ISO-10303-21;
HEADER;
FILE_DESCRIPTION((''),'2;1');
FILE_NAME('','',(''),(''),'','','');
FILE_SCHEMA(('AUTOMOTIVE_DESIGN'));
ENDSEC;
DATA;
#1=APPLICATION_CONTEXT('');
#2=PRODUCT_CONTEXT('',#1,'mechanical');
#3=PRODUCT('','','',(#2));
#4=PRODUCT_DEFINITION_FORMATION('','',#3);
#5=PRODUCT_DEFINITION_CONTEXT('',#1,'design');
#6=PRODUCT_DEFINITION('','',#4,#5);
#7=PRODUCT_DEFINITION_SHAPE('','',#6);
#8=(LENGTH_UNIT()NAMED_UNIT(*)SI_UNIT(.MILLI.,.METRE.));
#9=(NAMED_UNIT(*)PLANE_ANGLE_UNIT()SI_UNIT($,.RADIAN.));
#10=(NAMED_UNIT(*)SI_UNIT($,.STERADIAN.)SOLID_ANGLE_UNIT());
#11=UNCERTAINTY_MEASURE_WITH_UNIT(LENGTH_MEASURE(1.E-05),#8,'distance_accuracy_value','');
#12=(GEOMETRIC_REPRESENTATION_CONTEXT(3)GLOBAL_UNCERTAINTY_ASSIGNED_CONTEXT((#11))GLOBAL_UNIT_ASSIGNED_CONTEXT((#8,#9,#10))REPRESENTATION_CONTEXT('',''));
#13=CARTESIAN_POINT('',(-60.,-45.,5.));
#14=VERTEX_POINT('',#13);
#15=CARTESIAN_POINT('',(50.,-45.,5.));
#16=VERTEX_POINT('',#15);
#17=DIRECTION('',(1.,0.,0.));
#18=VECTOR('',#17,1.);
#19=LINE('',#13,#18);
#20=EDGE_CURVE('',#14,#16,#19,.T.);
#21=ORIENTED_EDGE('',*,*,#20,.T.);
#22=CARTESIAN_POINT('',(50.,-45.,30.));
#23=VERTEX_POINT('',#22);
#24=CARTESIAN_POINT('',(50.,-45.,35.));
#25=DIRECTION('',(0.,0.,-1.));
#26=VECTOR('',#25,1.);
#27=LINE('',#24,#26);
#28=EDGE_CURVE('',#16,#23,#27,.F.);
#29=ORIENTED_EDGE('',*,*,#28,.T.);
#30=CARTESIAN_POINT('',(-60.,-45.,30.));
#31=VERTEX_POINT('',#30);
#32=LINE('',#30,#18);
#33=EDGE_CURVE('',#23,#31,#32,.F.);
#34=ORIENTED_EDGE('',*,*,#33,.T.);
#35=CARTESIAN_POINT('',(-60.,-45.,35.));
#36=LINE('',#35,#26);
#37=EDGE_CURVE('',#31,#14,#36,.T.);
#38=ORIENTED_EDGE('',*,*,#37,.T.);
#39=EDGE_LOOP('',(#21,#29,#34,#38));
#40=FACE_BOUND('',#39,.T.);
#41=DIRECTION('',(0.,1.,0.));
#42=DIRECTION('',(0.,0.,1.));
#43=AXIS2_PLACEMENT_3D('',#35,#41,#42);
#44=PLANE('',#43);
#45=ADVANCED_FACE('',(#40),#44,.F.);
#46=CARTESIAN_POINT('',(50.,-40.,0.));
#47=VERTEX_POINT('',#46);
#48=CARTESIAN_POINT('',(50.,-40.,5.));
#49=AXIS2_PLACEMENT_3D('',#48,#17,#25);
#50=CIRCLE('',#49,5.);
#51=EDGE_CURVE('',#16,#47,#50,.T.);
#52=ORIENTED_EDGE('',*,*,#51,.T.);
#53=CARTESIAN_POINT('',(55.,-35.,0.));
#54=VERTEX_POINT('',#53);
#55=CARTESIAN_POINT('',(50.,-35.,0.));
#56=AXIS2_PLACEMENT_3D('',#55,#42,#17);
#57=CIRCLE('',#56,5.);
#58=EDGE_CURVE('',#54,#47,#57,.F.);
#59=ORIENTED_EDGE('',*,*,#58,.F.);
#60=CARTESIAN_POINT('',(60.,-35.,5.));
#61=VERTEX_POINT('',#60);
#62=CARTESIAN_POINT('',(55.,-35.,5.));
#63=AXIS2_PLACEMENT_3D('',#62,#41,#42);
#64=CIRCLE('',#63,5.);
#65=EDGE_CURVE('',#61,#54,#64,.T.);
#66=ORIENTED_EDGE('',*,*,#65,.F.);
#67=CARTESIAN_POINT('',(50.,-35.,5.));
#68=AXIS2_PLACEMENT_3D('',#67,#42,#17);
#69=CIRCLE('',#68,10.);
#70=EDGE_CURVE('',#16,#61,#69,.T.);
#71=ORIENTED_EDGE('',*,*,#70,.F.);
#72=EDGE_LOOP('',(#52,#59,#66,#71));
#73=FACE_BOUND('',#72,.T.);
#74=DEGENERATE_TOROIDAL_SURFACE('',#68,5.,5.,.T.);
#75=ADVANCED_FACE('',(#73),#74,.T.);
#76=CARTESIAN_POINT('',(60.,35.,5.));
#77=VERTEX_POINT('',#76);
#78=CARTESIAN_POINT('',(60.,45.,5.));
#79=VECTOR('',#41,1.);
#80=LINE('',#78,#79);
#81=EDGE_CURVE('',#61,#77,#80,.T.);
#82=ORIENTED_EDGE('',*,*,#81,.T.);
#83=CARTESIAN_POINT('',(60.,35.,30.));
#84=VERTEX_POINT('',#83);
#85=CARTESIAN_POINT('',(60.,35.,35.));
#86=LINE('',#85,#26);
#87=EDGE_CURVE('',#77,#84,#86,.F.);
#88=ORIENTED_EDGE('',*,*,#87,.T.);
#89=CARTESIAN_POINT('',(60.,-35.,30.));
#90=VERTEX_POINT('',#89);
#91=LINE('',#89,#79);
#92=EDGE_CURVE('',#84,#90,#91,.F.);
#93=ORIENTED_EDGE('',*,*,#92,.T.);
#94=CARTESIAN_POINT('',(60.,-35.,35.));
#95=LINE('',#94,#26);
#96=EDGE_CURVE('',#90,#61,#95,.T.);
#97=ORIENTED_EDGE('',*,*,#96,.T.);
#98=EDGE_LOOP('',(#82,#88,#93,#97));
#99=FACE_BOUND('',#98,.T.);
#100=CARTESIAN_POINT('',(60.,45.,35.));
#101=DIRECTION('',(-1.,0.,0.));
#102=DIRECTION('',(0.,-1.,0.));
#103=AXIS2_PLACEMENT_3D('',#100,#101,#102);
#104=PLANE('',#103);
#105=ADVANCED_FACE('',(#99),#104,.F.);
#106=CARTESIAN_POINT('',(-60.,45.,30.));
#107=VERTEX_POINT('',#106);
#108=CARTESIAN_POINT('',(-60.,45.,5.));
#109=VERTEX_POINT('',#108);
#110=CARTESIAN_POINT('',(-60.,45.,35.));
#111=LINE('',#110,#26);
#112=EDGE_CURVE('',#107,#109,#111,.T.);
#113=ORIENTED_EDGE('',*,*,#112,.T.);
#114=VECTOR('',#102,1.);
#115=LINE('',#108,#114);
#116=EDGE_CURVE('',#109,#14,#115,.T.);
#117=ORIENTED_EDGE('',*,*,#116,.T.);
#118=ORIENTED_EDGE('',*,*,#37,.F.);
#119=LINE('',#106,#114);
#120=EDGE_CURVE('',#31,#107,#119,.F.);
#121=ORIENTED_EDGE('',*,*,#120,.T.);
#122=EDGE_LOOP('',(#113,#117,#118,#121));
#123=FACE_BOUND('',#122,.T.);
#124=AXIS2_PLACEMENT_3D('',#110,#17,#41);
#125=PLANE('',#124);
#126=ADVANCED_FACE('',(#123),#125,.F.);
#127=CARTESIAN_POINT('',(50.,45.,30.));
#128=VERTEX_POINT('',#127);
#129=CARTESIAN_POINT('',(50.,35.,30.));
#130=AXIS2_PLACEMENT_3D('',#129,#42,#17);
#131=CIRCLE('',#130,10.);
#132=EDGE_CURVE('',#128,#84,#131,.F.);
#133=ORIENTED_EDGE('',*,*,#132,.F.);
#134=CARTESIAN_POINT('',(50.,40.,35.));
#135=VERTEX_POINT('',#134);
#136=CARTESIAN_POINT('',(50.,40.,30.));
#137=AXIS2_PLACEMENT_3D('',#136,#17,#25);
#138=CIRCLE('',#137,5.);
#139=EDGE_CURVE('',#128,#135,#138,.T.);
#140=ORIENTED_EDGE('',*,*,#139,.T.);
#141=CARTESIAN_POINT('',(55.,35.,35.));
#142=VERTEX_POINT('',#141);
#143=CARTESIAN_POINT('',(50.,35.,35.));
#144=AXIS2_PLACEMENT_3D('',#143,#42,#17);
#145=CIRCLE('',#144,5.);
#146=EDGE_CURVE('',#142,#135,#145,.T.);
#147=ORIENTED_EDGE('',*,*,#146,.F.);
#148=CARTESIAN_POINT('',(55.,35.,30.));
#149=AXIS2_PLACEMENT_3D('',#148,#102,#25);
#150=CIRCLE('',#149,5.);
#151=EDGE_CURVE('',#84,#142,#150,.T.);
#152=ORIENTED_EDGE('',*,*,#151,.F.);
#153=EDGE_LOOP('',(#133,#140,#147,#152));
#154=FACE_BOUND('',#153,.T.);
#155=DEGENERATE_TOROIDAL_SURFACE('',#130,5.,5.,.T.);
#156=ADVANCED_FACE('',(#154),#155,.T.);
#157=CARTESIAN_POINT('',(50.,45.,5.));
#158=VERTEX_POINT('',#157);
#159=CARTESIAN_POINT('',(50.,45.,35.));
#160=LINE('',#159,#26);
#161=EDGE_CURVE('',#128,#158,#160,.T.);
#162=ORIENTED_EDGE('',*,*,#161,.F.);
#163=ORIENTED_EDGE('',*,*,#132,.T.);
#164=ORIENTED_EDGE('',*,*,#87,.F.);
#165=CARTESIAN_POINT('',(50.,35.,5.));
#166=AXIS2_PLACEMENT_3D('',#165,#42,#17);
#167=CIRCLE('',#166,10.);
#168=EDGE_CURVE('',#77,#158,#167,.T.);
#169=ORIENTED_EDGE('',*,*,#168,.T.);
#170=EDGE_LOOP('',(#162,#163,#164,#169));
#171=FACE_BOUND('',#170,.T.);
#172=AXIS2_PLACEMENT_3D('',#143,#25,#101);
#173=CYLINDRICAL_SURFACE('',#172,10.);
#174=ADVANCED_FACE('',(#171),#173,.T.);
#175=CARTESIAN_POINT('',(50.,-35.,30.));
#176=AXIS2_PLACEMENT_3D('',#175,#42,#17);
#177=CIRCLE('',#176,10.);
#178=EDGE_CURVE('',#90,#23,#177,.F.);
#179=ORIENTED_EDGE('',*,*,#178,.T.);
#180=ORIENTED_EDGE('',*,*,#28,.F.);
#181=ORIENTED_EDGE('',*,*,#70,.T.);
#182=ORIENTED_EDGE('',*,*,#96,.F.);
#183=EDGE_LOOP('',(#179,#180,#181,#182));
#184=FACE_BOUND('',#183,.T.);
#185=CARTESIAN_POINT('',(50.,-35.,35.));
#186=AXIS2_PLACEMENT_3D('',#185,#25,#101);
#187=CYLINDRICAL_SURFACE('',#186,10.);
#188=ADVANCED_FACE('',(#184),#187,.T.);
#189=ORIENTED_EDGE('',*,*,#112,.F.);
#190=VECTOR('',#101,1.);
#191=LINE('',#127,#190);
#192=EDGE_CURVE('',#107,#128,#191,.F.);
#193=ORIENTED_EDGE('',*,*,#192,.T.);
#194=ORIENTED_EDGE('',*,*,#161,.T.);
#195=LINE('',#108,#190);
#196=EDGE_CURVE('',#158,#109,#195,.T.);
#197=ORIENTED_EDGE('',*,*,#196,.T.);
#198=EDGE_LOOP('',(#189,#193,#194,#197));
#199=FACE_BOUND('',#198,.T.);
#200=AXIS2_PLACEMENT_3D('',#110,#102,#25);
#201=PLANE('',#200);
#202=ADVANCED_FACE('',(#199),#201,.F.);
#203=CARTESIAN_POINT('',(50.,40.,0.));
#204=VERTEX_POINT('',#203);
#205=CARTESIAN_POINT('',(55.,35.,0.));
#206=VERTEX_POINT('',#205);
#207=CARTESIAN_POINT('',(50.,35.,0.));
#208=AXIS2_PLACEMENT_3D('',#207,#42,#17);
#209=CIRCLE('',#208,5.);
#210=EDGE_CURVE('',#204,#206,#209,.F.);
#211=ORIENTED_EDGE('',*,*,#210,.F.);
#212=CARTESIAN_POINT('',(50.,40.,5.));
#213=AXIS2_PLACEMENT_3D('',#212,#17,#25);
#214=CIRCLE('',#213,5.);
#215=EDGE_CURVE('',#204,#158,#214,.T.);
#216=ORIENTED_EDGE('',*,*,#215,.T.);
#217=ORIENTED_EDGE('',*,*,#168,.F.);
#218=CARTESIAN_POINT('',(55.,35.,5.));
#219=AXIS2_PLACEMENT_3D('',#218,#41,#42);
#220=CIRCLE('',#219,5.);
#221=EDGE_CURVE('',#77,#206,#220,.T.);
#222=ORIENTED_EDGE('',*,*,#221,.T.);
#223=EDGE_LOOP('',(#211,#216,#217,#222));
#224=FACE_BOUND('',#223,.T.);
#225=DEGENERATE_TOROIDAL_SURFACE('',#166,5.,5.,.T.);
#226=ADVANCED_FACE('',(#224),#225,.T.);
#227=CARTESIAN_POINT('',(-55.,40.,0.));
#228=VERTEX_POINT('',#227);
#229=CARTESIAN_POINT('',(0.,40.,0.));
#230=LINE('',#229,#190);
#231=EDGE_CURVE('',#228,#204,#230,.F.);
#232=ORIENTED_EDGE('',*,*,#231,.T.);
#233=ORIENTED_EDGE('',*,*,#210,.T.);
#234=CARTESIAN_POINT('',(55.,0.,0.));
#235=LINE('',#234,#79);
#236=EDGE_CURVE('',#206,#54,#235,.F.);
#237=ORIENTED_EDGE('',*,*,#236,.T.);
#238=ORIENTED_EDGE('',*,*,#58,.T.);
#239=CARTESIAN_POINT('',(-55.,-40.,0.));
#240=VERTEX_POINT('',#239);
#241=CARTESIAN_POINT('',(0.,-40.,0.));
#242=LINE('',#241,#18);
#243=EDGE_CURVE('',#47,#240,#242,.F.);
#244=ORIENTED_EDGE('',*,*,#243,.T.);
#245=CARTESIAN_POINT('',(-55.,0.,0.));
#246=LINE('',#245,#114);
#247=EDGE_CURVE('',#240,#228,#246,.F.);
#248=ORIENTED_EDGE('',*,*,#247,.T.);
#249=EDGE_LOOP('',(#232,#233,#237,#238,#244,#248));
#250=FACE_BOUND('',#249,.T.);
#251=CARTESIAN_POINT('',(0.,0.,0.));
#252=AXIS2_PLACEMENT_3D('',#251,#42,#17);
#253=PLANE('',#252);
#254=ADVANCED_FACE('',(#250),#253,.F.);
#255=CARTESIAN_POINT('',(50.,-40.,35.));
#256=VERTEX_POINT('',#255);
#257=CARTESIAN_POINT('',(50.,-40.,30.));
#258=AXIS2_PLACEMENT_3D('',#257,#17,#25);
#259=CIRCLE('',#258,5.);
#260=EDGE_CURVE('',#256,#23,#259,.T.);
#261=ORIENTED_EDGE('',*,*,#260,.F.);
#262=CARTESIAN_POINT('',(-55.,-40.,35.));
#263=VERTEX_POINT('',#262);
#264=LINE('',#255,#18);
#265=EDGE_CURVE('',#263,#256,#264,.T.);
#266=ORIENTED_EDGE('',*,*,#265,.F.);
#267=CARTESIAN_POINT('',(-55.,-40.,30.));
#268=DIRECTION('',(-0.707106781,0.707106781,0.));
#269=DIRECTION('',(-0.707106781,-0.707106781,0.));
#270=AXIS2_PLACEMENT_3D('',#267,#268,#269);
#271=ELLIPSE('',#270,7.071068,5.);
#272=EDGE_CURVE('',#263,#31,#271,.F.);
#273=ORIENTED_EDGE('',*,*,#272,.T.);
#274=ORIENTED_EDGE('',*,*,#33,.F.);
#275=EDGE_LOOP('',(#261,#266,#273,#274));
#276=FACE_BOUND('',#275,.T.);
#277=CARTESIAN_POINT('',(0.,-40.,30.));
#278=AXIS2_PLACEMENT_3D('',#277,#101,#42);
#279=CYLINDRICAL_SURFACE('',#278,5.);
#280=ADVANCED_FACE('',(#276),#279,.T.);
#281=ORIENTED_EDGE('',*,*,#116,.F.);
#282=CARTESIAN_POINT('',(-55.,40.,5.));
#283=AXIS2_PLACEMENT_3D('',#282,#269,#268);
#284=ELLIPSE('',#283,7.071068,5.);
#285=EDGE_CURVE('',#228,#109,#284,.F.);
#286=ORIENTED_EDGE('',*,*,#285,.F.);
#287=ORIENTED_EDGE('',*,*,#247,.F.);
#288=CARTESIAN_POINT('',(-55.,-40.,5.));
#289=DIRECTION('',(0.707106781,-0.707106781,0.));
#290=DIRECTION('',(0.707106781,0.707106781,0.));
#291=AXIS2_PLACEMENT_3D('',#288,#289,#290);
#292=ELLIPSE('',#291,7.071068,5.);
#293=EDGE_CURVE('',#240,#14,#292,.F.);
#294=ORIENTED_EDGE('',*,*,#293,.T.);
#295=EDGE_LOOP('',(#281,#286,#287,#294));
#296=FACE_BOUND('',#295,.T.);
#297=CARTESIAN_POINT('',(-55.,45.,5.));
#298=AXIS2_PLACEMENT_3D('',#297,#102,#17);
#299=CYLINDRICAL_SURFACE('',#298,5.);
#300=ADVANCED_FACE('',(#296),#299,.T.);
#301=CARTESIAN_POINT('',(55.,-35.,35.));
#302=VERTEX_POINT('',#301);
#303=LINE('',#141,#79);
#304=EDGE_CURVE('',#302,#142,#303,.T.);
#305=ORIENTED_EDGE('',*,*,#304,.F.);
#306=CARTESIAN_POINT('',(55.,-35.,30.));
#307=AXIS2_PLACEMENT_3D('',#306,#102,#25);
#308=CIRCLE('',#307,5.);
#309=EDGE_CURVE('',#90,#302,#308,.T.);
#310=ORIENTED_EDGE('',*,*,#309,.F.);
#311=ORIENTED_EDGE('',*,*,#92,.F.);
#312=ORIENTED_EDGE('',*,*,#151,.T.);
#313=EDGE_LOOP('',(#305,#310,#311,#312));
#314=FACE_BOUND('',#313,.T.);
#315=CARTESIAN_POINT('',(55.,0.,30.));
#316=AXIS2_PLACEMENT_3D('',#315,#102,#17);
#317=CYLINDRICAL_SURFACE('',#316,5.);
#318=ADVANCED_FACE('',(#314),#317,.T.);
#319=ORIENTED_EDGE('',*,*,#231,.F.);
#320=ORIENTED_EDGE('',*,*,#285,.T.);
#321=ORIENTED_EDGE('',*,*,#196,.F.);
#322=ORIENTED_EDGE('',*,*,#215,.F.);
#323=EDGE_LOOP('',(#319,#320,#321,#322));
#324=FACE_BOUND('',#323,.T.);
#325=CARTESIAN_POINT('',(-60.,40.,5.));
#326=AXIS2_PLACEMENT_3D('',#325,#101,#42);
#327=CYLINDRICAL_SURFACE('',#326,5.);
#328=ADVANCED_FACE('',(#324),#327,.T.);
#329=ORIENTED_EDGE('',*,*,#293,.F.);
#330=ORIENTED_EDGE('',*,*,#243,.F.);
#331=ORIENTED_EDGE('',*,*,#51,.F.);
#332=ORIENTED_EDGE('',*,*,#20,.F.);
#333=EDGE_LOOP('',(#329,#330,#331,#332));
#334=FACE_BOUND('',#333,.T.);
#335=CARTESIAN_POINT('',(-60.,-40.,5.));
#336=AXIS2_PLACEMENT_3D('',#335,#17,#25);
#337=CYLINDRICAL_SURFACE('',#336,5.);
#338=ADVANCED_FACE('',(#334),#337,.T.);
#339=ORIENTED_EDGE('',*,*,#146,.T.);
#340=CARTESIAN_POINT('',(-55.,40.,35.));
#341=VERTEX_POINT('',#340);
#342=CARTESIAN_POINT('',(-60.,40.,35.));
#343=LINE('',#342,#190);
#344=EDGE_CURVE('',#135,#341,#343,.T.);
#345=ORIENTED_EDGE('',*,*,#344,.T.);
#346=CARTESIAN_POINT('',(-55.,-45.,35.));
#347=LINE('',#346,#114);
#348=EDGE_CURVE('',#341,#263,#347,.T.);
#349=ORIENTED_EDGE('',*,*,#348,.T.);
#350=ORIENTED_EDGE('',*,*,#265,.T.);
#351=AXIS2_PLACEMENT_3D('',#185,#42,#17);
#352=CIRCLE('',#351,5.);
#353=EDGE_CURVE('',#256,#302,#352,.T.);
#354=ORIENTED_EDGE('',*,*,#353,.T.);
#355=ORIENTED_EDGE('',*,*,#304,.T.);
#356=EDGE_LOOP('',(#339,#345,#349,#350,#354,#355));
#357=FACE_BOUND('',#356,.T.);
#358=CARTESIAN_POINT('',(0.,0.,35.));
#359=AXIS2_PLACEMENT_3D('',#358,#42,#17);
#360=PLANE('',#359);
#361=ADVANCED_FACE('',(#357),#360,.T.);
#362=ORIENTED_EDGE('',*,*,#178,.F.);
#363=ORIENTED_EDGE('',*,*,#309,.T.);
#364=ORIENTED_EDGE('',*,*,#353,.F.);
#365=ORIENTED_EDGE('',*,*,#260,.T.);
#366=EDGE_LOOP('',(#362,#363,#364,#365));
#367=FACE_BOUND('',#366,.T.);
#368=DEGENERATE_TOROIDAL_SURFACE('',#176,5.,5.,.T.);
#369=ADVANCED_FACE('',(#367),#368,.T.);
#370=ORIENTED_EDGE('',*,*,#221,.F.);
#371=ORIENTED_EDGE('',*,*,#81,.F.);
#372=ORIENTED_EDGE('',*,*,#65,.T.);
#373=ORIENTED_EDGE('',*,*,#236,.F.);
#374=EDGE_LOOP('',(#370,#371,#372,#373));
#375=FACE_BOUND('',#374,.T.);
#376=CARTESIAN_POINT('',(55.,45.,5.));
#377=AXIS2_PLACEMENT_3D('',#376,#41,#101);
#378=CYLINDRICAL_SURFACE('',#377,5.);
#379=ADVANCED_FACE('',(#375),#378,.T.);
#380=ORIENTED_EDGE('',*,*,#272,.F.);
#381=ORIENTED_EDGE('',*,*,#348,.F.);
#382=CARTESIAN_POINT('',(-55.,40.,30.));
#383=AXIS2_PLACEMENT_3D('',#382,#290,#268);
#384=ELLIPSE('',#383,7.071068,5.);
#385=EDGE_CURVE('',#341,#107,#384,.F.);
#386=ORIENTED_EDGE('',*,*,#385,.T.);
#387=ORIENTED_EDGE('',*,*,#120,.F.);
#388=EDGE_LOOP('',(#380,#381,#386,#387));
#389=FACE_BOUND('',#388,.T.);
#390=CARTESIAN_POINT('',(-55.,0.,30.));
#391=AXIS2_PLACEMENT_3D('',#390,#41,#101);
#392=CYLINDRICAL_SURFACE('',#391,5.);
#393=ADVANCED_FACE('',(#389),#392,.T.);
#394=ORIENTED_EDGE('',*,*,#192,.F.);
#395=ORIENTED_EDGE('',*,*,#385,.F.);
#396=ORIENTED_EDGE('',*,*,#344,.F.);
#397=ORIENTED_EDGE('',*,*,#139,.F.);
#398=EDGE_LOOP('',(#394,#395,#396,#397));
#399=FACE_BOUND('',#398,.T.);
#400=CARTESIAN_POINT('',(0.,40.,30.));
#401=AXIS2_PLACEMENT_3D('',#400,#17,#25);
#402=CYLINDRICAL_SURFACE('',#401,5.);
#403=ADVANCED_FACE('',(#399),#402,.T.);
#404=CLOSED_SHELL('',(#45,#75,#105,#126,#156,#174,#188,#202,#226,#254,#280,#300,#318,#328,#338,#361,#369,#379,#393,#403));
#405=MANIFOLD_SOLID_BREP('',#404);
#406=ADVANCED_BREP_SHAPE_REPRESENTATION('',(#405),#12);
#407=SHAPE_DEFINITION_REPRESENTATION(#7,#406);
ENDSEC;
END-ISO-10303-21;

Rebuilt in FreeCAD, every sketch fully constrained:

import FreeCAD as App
import Part
import Sketcher


def edges_at(feature, points):
    """Names of the edges that pass closest to the given points."""
    edges = feature.Shape.Edges
    near = lambda p: min(range(len(edges)), key=lambda i: edges[i].distToShape(Part.Vertex(*p))[0])
    return sorted({f"Edge{near(p) + 1}" for p in points})


def add_polygon(sketch, points):
    """Adds a closed chain of lines whose ends are joined by coincident constraints."""
    first, n = sketch.GeometryCount, len(points)
    for a, b in zip(points, points[1:] + points[:1]):
        sketch.addGeometry(Part.LineSegment(App.Vector(*a, 0), App.Vector(*b, 0)), False)
    for i in range(n):
        sketch.addConstraint(Sketcher.Constraint("Coincident", first + i, 2, first + (i + 1) % n, 1))

doc = App.newDocument("Part")
body = doc.addObject("PartDesign::Body", "Body")

sketch1 = body.newObject("Sketcher::SketchObject", "Sketch")
sketch1.AttachmentSupport = (doc.getObject("XY_Plane"), [""])
sketch1.MapMode = "FlatFace"
add_polygon(sketch1, [(-60, 45), (-60, -45), (60, -45), (60, 45)])
sketch1.addConstraint([
    Sketcher.Constraint("Vertical", 0),
    Sketcher.Constraint("Horizontal", 1),
    Sketcher.Constraint("Vertical", 2),
    Sketcher.Constraint("Horizontal", 3),
    Sketcher.Constraint("Symmetric", 0, 2, 2, 2, -1, 1),
    Sketcher.Constraint("DistanceX", 1, 1, 1, 2, 120.0),
    Sketcher.Constraint("DistanceY", 0, 2, 0, 1, 90.0),
])
pad1 = body.newObject("PartDesign::Pad", "Pad")
pad1.Profile = sketch1
pad1.Length = 35
doc.recompute()

fillet = body.newObject("PartDesign::Fillet", "Fillet")
fillet.Base = (pad1, edges_at(pad1, [(60, -45, 17.5), (60, 45, 17.5)]))
fillet.Radius = 10
doc.recompute()

fillet2 = body.newObject("PartDesign::Fillet", "Fillet001")
fillet2.Base = (fillet, edges_at(fillet, [
    (-60, 0, 35),
    (-5, -45, 35),
    (60, 0, 0),
    (60, 0, 35),
    (-5, 45, 0),
    (57.071, 42.071, 0),
    (57.071, -42.071, 0),
    (-5, 45, 35),
    (57.071, 42.071, 35),
    (57.071, -42.071, 35),
    (-5, -45, 0),
    (-60, 0, 0),
]))
fillet2.Radius = 5

doc.recompute()
